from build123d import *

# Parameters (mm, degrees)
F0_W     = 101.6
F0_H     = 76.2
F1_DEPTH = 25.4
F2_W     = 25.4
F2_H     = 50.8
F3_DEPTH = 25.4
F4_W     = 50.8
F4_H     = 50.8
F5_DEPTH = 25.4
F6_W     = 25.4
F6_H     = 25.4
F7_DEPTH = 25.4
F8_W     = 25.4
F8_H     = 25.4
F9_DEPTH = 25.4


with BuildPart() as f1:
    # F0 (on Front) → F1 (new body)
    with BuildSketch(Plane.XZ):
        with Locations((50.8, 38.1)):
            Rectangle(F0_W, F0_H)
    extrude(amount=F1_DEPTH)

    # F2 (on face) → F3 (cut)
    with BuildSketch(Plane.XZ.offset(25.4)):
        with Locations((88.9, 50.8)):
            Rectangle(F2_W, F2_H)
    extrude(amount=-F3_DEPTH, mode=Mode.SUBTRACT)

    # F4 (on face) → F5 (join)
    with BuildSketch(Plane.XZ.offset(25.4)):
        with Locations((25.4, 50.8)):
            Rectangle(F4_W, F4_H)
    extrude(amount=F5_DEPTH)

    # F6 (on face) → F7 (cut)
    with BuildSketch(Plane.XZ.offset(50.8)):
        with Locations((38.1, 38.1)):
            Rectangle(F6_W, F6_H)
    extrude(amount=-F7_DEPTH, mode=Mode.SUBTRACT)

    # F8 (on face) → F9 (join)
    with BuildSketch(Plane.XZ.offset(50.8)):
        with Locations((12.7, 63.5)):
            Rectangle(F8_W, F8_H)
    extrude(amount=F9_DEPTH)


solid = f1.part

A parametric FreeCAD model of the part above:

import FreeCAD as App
import Part
import Sketcher
Q = App.Units.Quantity


def add_polygon(sketch, points):
    """Adds a closed chain of lines whose ends are joined by coincident constraints."""
    first, n = sketch.GeometryCount, len(points)
    for a, b in zip(points, points[1:] + points[:1]):
        sketch.addGeometry(Part.LineSegment(App.Vector(*a, 0), App.Vector(*b, 0)), False)
    for i in range(n):
        sketch.addConstraint(Sketcher.Constraint("Coincident", first + i, 2, first + (i + 1) % n, 1))

doc = App.newDocument("Part")
params = doc.addObject("Spreadsheet::Sheet", "Params")
for row, (alias, value) in enumerate([
    ("sketch1_width", "4 in"),
    ("sketch1_height", "3 in"),
    ("pad1_length", "1 in"),
    ("sketch2_width", "1 in"),
    ("sketch2_height", "2 in"),
    ("pocket1_length", "1 in"),
    ("sketch3_width", "2 in"),
    ("pad2_length", "1 in"),
    ("sketch4_width", "1 in"),
    ("pocket2_length", "1 in"),
    ("sketch5_width", "1 in"),
    ("pad3_length", "1 in"),
], start=1):
    params.set(f"A{row}", alias)
    params.set(f"B{row}", "=" + value)
    params.setAlias(f"B{row}", alias)

body = doc.addObject("PartDesign::Body", "Body")

# Sketch on XZ plane
sketch1 = body.newObject("Sketcher::SketchObject", "Sketch")
sketch1.AttachmentSupport = (doc.getObject("XZ_Plane"), [""])
sketch1.MapMode = "FlatFace"
add_polygon(sketch1, [(0, 76), (0, 0), (102, 0), (102, 76)])  # lines 0-3
sketch1.addConstraint(Sketcher.Constraint("Vertical", 0))
sketch1.addConstraint(Sketcher.Constraint("Horizontal", 1))
sketch1.addConstraint(Sketcher.Constraint("Vertical", 2))
sketch1.addConstraint(Sketcher.Constraint("Horizontal", 3))
sketch1.addConstraint(Sketcher.Constraint("Coincident", 0, 2, -1, 1))
sketch1.addConstraint(Sketcher.Constraint("DistanceX", 1, 1, 1, 2, Q("4 in")))
sketch1.addConstraint(Sketcher.Constraint("DistanceY", 0, 2, 0, 1, Q("3 in")))
sketch1.setExpression("Constraints[9]", "Params.sketch1_width")
sketch1.setExpression("Constraints[10]", "Params.sketch1_height")
pad1 = body.newObject("PartDesign::Pad", "Pad")
pad1.Profile = sketch1
pad1.setExpression("Length", "Params.pad1_length")

# Sketch on XZ plane
sketch2 = body.newObject("Sketcher::SketchObject", "Sketch001")
sketch2.AttachmentSupport = (doc.getObject("XZ_Plane"), [""])
sketch2.MapMode = "FlatFace"
sketch2.AttachmentOffset = App.Placement(App.Vector(0, 0, 1 * 25.4), App.Rotation())
add_polygon(sketch2, [(76, 76), (76, 25), (102, 25), (102, 76)])  # lines 0-3
sketch2.addConstraint(Sketcher.Constraint("Vertical", 0))
sketch2.addConstraint(Sketcher.Constraint("Horizontal", 1))
sketch2.addConstraint(Sketcher.Constraint("Vertical", 2))
sketch2.addConstraint(Sketcher.Constraint("Horizontal", 3))
sketch2.addConstraint(Sketcher.Constraint("DistanceX", 1, 1, 1, 2, Q("1 in")))
sketch2.addConstraint(Sketcher.Constraint("DistanceY", 0, 2, 0, 1, Q("2 in")))
sketch2.addConstraint(Sketcher.Constraint("DistanceX", -1, 1, 0, 2, Q("3 in")))
sketch2.addConstraint(Sketcher.Constraint("DistanceY", -1, 1, 0, 2, Q("1 in")))
sketch2.setExpression("Constraints[8]", "Params.sketch2_width")
sketch2.setExpression("Constraints[9]", "Params.sketch2_height")
pocket1 = body.newObject("PartDesign::Pocket", "Pocket")
pocket1.Profile = sketch2
pocket1.setExpression("Length", "Params.pocket1_length")

# Sketch on XZ plane
sketch3 = body.newObject("Sketcher::SketchObject", "Sketch002")
sketch3.AttachmentSupport = (doc.getObject("XZ_Plane"), [""])
sketch3.MapMode = "FlatFace"
sketch3.AttachmentOffset = App.Placement(App.Vector(0, 0, 1 * 25.4), App.Rotation())
add_polygon(sketch3, [(0, 76), (0, 25), (51, 25), (51, 76)])  # lines 0-3
sketch3.addConstraint(Sketcher.Constraint("Vertical", 0))
sketch3.addConstraint(Sketcher.Constraint("Horizontal", 1))
sketch3.addConstraint(Sketcher.Constraint("Vertical", 2))
sketch3.addConstraint(Sketcher.Constraint("Horizontal", 3))
sketch3.addConstraint(Sketcher.Constraint("PointOnObject", 0, 2, -2))
sketch3.addConstraint(Sketcher.Constraint("Equal", 3, 0))
sketch3.addConstraint(Sketcher.Constraint("DistanceX", 1, 1, 1, 2, Q("2 in")))
sketch3.addConstraint(Sketcher.Constraint("DistanceY", -1, 1, 0, 2, Q("1 in")))
sketch3.setExpression("Constraints[10]", "Params.sketch3_width")
pad2 = body.newObject("PartDesign::Pad", "Pad001")
pad2.Profile = sketch3
pad2.setExpression("Length", "Params.pad2_length")

# Sketch on XZ plane
sketch4 = body.newObject("Sketcher::SketchObject", "Sketch003")
sketch4.AttachmentSupport = (doc.getObject("XZ_Plane"), [""])
sketch4.MapMode = "FlatFace"
sketch4.AttachmentOffset = App.Placement(App.Vector(0, 0, 2 * 25.4), App.Rotation())
add_polygon(sketch4, [(25, 51), (25, 25), (51, 25), (51, 51)])  # lines 0-3
sketch4.addConstraint(Sketcher.Constraint("Vertical", 0))
sketch4.addConstraint(Sketcher.Constraint("Horizontal", 1))
sketch4.addConstraint(Sketcher.Constraint("Vertical", 2))
sketch4.addConstraint(Sketcher.Constraint("Horizontal", 3))
sketch4.addConstraint(Sketcher.Constraint("Equal", 3, 0))
sketch4.addConstraint(Sketcher.Constraint("DistanceX", 1, 1, 1, 2, Q("1 in")))
sketch4.addConstraint(Sketcher.Constraint("DistanceX", -1, 1, 0, 2, Q("1 in")))
sketch4.addConstraint(Sketcher.Constraint("DistanceY", -1, 1, 0, 2, Q("1 in")))
sketch4.setExpression("Constraints[9]", "Params.sketch4_width")
pocket2 = body.newObject("PartDesign::Pocket", "Pocket001")
pocket2.Profile = sketch4
pocket2.setExpression("Length", "Params.pocket2_length")

# Sketch on XZ plane
sketch5 = body.newObject("Sketcher::SketchObject", "Sketch004")
sketch5.AttachmentSupport = (doc.getObject("XZ_Plane"), [""])
sketch5.MapMode = "FlatFace"
sketch5.AttachmentOffset = App.Placement(App.Vector(0, 0, 2 * 25.4), App.Rotation())
add_polygon(sketch5, [(0, 76), (0, 51), (25, 51), (25, 76)])  # lines 0-3
sketch5.addConstraint(Sketcher.Constraint("Vertical", 0))
sketch5.addConstraint(Sketcher.Constraint("Horizontal", 1))
sketch5.addConstraint(Sketcher.Constraint("Vertical", 2))
sketch5.addConstraint(Sketcher.Constraint("Horizontal", 3))
sketch5.addConstraint(Sketcher.Constraint("PointOnObject", 0, 2, -2))
sketch5.addConstraint(Sketcher.Constraint("Equal", 3, 0))
sketch5.addConstraint(Sketcher.Constraint("DistanceX", 1, 1, 1, 2, Q("1 in")))
sketch5.addConstraint(Sketcher.Constraint("DistanceY", -1, 1, 0, 2, Q("2 in")))
sketch5.setExpression("Constraints[10]", "Params.sketch5_width")
pad3 = body.newObject("PartDesign::Pad", "Pad002")
pad3.Profile = sketch5
pad3.setExpression("Length", "Params.pad3_length")

doc.recompute()
